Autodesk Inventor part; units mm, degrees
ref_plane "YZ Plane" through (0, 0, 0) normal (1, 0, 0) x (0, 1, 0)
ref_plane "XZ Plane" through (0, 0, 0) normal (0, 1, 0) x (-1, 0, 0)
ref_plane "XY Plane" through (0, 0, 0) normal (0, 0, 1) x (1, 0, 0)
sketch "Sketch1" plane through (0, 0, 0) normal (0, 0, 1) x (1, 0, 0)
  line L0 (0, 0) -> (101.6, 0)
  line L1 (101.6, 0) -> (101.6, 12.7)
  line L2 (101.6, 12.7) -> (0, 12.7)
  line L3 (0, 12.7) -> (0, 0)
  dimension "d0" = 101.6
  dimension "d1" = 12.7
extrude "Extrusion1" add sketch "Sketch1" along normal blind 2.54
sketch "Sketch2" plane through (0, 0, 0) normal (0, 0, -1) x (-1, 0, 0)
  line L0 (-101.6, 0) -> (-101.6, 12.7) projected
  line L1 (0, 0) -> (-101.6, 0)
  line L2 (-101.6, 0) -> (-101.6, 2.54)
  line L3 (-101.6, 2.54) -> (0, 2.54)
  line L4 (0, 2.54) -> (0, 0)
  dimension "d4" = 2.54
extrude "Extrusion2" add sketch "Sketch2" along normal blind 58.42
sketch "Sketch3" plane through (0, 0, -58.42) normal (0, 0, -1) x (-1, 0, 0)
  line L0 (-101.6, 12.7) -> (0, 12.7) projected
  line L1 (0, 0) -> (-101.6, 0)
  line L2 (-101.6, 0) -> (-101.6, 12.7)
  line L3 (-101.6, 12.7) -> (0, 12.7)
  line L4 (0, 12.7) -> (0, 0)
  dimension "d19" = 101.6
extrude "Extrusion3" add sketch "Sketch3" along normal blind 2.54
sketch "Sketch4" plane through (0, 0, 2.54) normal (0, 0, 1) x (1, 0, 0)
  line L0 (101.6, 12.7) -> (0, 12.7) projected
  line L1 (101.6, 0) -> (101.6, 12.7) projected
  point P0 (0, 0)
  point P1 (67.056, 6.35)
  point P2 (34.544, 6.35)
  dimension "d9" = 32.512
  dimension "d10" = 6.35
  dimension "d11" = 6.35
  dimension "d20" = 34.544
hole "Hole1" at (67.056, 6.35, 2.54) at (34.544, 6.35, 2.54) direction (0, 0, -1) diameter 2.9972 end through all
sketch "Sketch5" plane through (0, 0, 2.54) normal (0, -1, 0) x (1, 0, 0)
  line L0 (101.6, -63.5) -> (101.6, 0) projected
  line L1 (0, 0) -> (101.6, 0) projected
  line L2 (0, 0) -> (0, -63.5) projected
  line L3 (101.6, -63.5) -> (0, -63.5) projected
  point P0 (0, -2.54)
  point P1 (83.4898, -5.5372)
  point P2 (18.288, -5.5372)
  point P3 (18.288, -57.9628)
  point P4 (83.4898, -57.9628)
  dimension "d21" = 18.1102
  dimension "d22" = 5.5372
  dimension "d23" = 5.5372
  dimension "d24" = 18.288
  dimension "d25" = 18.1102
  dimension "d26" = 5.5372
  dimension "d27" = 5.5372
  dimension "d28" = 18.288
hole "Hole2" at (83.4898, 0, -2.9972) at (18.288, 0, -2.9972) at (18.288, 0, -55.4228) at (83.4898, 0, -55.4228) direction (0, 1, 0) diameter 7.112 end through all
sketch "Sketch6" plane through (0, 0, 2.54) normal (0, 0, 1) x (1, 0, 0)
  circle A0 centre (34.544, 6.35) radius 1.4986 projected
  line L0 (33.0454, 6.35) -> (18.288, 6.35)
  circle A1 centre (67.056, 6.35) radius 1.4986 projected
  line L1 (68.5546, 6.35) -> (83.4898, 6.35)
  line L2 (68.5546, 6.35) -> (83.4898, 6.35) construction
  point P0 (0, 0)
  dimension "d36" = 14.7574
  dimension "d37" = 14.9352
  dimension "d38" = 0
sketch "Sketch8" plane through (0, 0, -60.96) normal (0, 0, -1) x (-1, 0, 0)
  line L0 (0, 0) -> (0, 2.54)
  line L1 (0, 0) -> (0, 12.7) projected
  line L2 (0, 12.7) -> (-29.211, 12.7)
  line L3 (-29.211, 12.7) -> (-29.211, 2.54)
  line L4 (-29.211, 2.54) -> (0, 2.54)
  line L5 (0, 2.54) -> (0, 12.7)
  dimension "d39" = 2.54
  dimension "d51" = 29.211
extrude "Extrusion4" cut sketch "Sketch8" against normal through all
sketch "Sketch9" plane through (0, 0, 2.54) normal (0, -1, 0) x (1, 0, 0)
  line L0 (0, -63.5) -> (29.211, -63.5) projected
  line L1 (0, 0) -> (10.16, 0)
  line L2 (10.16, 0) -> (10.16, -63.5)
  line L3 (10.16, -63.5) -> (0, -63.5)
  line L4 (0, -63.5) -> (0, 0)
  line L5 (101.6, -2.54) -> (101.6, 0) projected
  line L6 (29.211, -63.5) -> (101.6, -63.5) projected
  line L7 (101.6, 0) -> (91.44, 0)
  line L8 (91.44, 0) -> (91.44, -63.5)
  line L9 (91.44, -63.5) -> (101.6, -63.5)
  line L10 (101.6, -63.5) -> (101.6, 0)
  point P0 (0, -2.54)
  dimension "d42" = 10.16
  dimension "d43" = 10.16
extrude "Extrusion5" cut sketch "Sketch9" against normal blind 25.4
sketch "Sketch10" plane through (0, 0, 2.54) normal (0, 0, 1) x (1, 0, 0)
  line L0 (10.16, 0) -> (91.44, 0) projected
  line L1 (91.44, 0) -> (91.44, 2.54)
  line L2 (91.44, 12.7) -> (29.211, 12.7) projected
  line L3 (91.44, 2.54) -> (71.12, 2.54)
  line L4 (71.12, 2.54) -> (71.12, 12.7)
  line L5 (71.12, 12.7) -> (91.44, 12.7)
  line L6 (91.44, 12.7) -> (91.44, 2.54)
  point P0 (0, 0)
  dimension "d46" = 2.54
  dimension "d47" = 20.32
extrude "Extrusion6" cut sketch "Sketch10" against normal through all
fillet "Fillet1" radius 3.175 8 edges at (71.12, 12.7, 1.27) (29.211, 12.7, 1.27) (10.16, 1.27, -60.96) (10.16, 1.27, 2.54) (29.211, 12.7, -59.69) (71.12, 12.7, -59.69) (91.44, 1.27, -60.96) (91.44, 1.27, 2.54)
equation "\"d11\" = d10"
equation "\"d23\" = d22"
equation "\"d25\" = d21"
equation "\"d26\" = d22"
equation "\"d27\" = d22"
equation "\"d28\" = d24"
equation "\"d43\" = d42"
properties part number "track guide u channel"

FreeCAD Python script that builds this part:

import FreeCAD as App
import Part
import Sketcher
from FreeCAD import Vector
Q = App.Units.Quantity


def edges_at(feature, points):
    """Names of the edges that pass closest to the given points."""
    edges = feature.Shape.Edges
    near = lambda p: min(range(len(edges)), key=lambda i: edges[i].distToShape(Part.Vertex(*p))[0])
    return sorted({f"Edge{near(p) + 1}" for p in points})


def add_polygon(sketch, points):
    """Adds a closed chain of lines whose ends are joined by coincident constraints."""
    first, n = sketch.GeometryCount, len(points)
    for a, b in zip(points, points[1:] + points[:1]):
        sketch.addGeometry(Part.LineSegment(App.Vector(*a, 0), App.Vector(*b, 0)), False)
    for i in range(n):
        sketch.addConstraint(Sketcher.Constraint("Coincident", first + i, 2, first + (i + 1) % n, 1))

doc = App.newDocument("Part")
params = doc.addObject("Spreadsheet::Sheet", "Params")
for row, (alias, value) in enumerate([
    ("sketch1_width", "4 in"),
    ("sketch1_height", "0.5 in"),
    ("pad1_length", "0.1 in"),
    ("sketch2_height", "0.1 in"),
    ("sketch2_width", "4 in"),
    ("pad2_length", "2.3 in"),
    ("sketch3_width", "4 in"),
    ("sketch3_height", "0.5 in"),
    ("pad3_length", "0.1 in"),
    ("sketch4_diameter", "0.118 in"),
    ("hole_diameter", "0.118 in"),
    ("sketch5_diameter", "0.28 in"),
    ("hole2_diameter", "0.28 in"),
    ("sketch6_height", "0.4 in"),
    ("sketch7_width", "0.4 in"),
    ("sketch7_height", "2.5 in"),
    ("pocket2_length", "1 in"),
    ("sketch8_width", "0.8 in"),
    ("sketch8_height", "0.4 in"),
    ("fillet_radius", "0.125 in"),
], start=1):
    params.set(f"A{row}", alias)
    params.set(f"B{row}", "=" + value)
    params.setAlias(f"B{row}", alias)

body = doc.addObject("PartDesign::Body", "Body")

sketch1 = doc.addObject("Sketcher::SketchObject", "Sketch")
body.addObject(sketch1)
sketch1.AttachmentSupport = (doc.XY_Plane, [""])
sketch1.MapMode = "FlatFace"
add_polygon(sketch1, [(0, 12.7), (0, 0), (101.6, 0), (101.6, 12.7)])
sketch1.addConstraint(Sketcher.Constraint("Vertical", 0))
sketch1.addConstraint(Sketcher.Constraint("Horizontal", 1))
sketch1.addConstraint(Sketcher.Constraint("Vertical", 2))
sketch1.addConstraint(Sketcher.Constraint("Horizontal", 3))
sketch1.addConstraint(Sketcher.Constraint("Coincident", 0, 2, -1, 1))
sketch1.addConstraint(Sketcher.Constraint("DistanceX", 1, 1, 1, 2, Q("4 in")))
sketch1.addConstraint(Sketcher.Constraint("DistanceY", 0, 2, 0, 1, Q("0.5 in")))
sketch1.setExpression("Constraints[9]", "Params.sketch1_width")
sketch1.setExpression("Constraints[10]", "Params.sketch1_height")
pad1 = doc.addObject("PartDesign::Pad", "Pad")
body.addObject(pad1)
pad1.Profile = sketch1
pad1.setExpression("Length", "Params.pad1_length")

sketch2 = doc.addObject("Sketcher::SketchObject", "Sketch001")
body.addObject(sketch2)
sketch2.AttachmentSupport = (doc.XY_Plane, [""])
sketch2.MapMode = "FlatFace"
add_polygon(sketch2, [(101.6, 2.54), (101.6, 0), (0, 0), (0, 2.54)])
sketch2.addConstraint(Sketcher.Constraint("Vertical", 0))
sketch2.addConstraint(Sketcher.Constraint("Horizontal", 1))
sketch2.addConstraint(Sketcher.Constraint("Vertical", 2))
sketch2.addConstraint(Sketcher.Constraint("Horizontal", 3))
sketch2.addConstraint(Sketcher.Constraint("Coincident", 1, 2, -1, 1))
sketch2.addConstraint(Sketcher.Constraint("DistanceY", 0, 2, 0, 1, Q("0.1 in")))
sketch2.addConstraint(Sketcher.Constraint("DistanceX", 1, 2, 1, 1, Q("4 in")))
sketch2.setExpression("Constraints[9]", "Params.sketch2_height")
sketch2.setExpression("Constraints[10]", "Params.sketch2_width")
pad2 = doc.addObject("PartDesign::Pad", "Pad001")
body.addObject(pad2)
pad2.Profile = sketch2
pad2.setExpression("Length", "Params.pad2_length")
pad2.Reversed = True

sketch3 = doc.addObject("Sketcher::SketchObject", "Sketch002")
body.addObject(sketch3)
sketch3.AttachmentSupport = (doc.XY_Plane, [""])
sketch3.MapMode = "FlatFace"
sketch3.AttachmentOffset = App.Placement(Vector(0, 0, -2.3 * 25.4), App.Rotation())
add_polygon(sketch3, [(0, 12.7), (101.6, 12.7), (101.6, 0), (0, 0)])
sketch3.addConstraint(Sketcher.Constraint("Horizontal", 0))
sketch3.addConstraint(Sketcher.Constraint("Vertical", 1))
sketch3.addConstraint(Sketcher.Constraint("Horizontal", 2))
sketch3.addConstraint(Sketcher.Constraint("Vertical", 3))
sketch3.addConstraint(Sketcher.Constraint("Coincident", 2, 2, -1, 1))
sketch3.addConstraint(Sketcher.Constraint("DistanceX", 0, 1, 0, 2, Q("4 in")))
sketch3.addConstraint(Sketcher.Constraint("DistanceY", 1, 2, 1, 1, Q("0.5 in")))
sketch3.setExpression("Constraints[9]", "Params.sketch3_width")
sketch3.setExpression("Constraints[10]", "Params.sketch3_height")
pad3 = doc.addObject("PartDesign::Pad", "Pad002")
body.addObject(pad3)
pad3.Profile = sketch3
pad3.setExpression("Length", "Params.pad3_length")
pad3.Reversed = True

sketch4 = doc.addObject("Sketcher::SketchObject", "Sketch003")
body.addObject(sketch4)
sketch4.AttachmentSupport = (doc.XY_Plane, [""])
sketch4.MapMode = "FlatFace"
sketch4.AttachmentOffset = App.Placement(Vector(0, 0, 0.1 * 25.4), App.Rotation())
sketch4.addGeometry(Part.Circle(Vector(67.056, 6.35, 0), Vector(0, 0, 1), 1.4986), False)
sketch4.addGeometry(Part.Circle(Vector(34.544, 6.35, 0), Vector(0, 0, 1), 1.4986), False)
sketch4.addConstraint(Sketcher.Constraint("Equal", 0, 1))
sketch4.addConstraint(Sketcher.Constraint("Horizontal", 0, 3, 1, 3))
sketch4.addConstraint(Sketcher.Constraint("Diameter", 0, Q("0.118 in")))
sketch4.addConstraint(Sketcher.Constraint("DistanceX", -1, 1, 0, 3, Q("2.64 in")))
sketch4.addConstraint(Sketcher.Constraint("DistanceY", -1, 1, 0, 3, Q("0.25 in")))
sketch4.addConstraint(Sketcher.Constraint("DistanceX", -1, 1, 1, 3, Q("1.36 in")))
sketch4.setExpression("Constraints[2]", "Params.sketch4_diameter")
doc.recompute()
hole = doc.addObject("PartDesign::Hole", "Hole")
body.addObject(hole)
hole.Profile = sketch4
hole.ThreadType = "None"
hole.setExpression("Diameter", "Params.hole_diameter")
hole.DepthType = "ThroughAll"

sketch5 = doc.addObject("Sketcher::SketchObject", "Sketch004")
body.addObject(sketch5)
sketch5.AttachmentSupport = (doc.XZ_Plane, [""])
sketch5.MapMode = "FlatFace"
sketch5.addGeometry(Part.Circle(Vector(83.4898, -2.9972, 0), Vector(0, 0, 1), 3.556), False)
sketch5.addGeometry(Part.Circle(Vector(18.288, -2.9972, 0), Vector(0, 0, 1), 3.556), False)
sketch5.addGeometry(Part.Circle(Vector(18.288, -55.4228, 0), Vector(0, 0, 1), 3.556), False)
sketch5.addGeometry(Part.Circle(Vector(83.4898, -55.4228, 0), Vector(0, 0, 1), 3.556), False)
sketch5.addConstraint(Sketcher.Constraint("Equal", 0, 1))
sketch5.addConstraint(Sketcher.Constraint("Equal", 1, 2))
sketch5.addConstraint(Sketcher.Constraint("Equal", 2, 3))
sketch5.addConstraint(Sketcher.Constraint("Horizontal", 0, 3, 1, 3))
sketch5.addConstraint(Sketcher.Constraint("Horizontal", 2, 3, 3, 3))
sketch5.addConstraint(Sketcher.Constraint("Vertical", 1, 3, 2, 3))
sketch5.addConstraint(Sketcher.Constraint("Vertical", 0, 3, 3, 3))
sketch5.addConstraint(Sketcher.Constraint("Diameter", 0, Q("0.28 in")))
sketch5.addConstraint(Sketcher.Constraint("DistanceX", -1, 1, 1, 3, Q("0.72 in")))
sketch5.addConstraint(Sketcher.Constraint("DistanceX", -1, 1, 0, 3, Q("3.287 in")))
sketch5.addConstraint(Sketcher.Constraint("DistanceY", 0, 3, -1, 1, Q("0.118 in")))
sketch5.addConstraint(Sketcher.Constraint("DistanceY", 2, 3, -1, 1, Q("2.182 in")))
sketch5.setExpression("Constraints[7]", "Params.sketch5_diameter")
doc.recompute()
hole2 = doc.addObject("PartDesign::Hole", "Hole001")
body.addObject(hole2)
hole2.Profile = sketch5
hole2.ThreadType = "None"
hole2.setExpression("Diameter", "Params.hole2_diameter")
hole2.DepthType = "ThroughAll"

sketch6 = doc.addObject("Sketcher::SketchObject", "Sketch005")
body.addObject(sketch6)
sketch6.AttachmentSupport = (doc.XY_Plane, [""])
sketch6.MapMode = "FlatFace"
sketch6.AttachmentOffset = App.Placement(Vector(0, 0, -2.4 * 25.4), App.Rotation())
add_polygon(sketch6, [(29.211, 2.54), (0, 2.54), (0, 12.7), (29.211, 12.7)])
sketch6.addConstraint(Sketcher.Constraint("Horizontal", 0))
sketch6.addConstraint(Sketcher.Constraint("Vertical", 1))
sketch6.addConstraint(Sketcher.Constraint("Horizontal", 2))
sketch6.addConstraint(Sketcher.Constraint("Vertical", 3))
sketch6.addConstraint(Sketcher.Constraint("PointOnObject", 0, 2, -2))
sketch6.addConstraint(Sketcher.Constraint("DistanceY", -1, 1, 0, 2, Q("0.1 in")))
sketch6.addConstraint(Sketcher.Constraint("DistanceY", 1, 1, 1, 2, Q("0.4 in")))
sketch6.addConstraint(Sketcher.Constraint("DistanceX", 0, 2, 0, 1, Q("29.211 mm")))
sketch6.setExpression("Constraints[10]", "Params.sketch6_height")
pocket1 = doc.addObject("PartDesign::Pocket", "Pocket")
body.addObject(pocket1)
pocket1.Profile = sketch6
pocket1.Type = "ThroughAll"
pocket1.Reversed = True

sketch7 = doc.addObject("Sketcher::SketchObject", "Sketch006")
body.addObject(sketch7)
sketch7.AttachmentSupport = (doc.XZ_Plane, [""])
sketch7.MapMode = "FlatFace"
add_polygon(sketch7, [(0, 2.54), (0, -60.96), (10.16, -60.96), (10.16, 2.54)])
add_polygon(sketch7, [(91.44, 2.54), (91.44, -60.96), (101.6, -60.96), (101.6, 2.54)])
sketch7.addConstraint(Sketcher.Constraint("Vertical", 0))
sketch7.addConstraint(Sketcher.Constraint("Horizontal", 1))
sketch7.addConstraint(Sketcher.Constraint("Vertical", 2))
sketch7.addConstraint(Sketcher.Constraint("Horizontal", 3))
sketch7.addConstraint(Sketcher.Constraint("Vertical", 4))
sketch7.addConstraint(Sketcher.Constraint("Horizontal", 5))
sketch7.addConstraint(Sketcher.Constraint("Vertical", 6))
sketch7.addConstraint(Sketcher.Constraint("Horizontal", 7))
sketch7.addConstraint(Sketcher.Constraint("PointOnObject", 0, 2, -2))
sketch7.addConstraint(Sketcher.Constraint("Horizontal", 1, 2, 4, 2))
sketch7.addConstraint(Sketcher.Constraint("Horizontal", 3, 2, 6, 2))
sketch7.addConstraint(Sketcher.Constraint("Equal", 3, 5))
sketch7.addConstraint(Sketcher.Constraint("DistanceX", 1, 1, 1, 2, Q("0.4 in")))
sketch7.addConstraint(Sketcher.Constraint("DistanceY", 0, 2, 0, 1, Q("2.5 in")))
sketch7.addConstraint(Sketcher.Constraint("DistanceX", -1, 1, 5, 2, Q("4 in")))
sketch7.addConstraint(Sketcher.Constraint("DistanceY", 0, 2, -1, 1, Q("2.4 in")))
sketch7.setExpression("Constraints[20]", "Params.sketch7_width")
sketch7.setExpression("Constraints[21]", "Params.sketch7_height")
pocket2 = doc.addObject("PartDesign::Pocket", "Pocket001")
body.addObject(pocket2)
pocket2.Profile = sketch7
pocket2.setExpression("Length", "Params.pocket2_length")

sketch8 = doc.addObject("Sketcher::SketchObject", "Sketch007")
body.addObject(sketch8)
sketch8.AttachmentSupport = (doc.XY_Plane, [""])
sketch8.MapMode = "FlatFace"
sketch8.AttachmentOffset = App.Placement(Vector(0, 0, 0.1 * 25.4), App.Rotation())
add_polygon(sketch8, [(91.44, 2.54), (91.44, 12.7), (71.12, 12.7), (71.12, 2.54)])
sketch8.addConstraint(Sketcher.Constraint("Vertical", 0))
sketch8.addConstraint(Sketcher.Constraint("Horizontal", 1))
sketch8.addConstraint(Sketcher.Constraint("Vertical", 2))
sketch8.addConstraint(Sketcher.Constraint("Horizontal", 3))
sketch8.addConstraint(Sketcher.Constraint("DistanceX", 1, 2, 1, 1, Q("0.8 in")))
sketch8.addConstraint(Sketcher.Constraint("DistanceY", -1, 1, 2, 2, Q("0.1 in")))
sketch8.addConstraint(Sketcher.Constraint("DistanceY", 0, 1, 0, 2, Q("0.4 in")))
sketch8.addConstraint(Sketcher.Constraint("DistanceX", -1, 1, 0, 2, Q("3.6 in")))
sketch8.setExpression("Constraints[8]", "Params.sketch8_width")
sketch8.setExpression("Constraints[10]", "Params.sketch8_height")
pocket3 = doc.addObject("PartDesign::Pocket", "Pocket002")
body.addObject(pocket3)
pocket3.Profile = sketch8
pocket3.Type = "ThroughAll"
doc.recompute()

fillet = doc.addObject("PartDesign::Fillet", "Fillet")
body.addObject(fillet)
fillet.Base = (pocket3, edges_at(pocket3, [
    (71.12, 12.7, 1.27),
    (29.211, 12.7, 1.27),
    (10.16, 1.27, -60.96),
    (10.16, 1.27, 2.54),
    (29.211, 12.7, -59.69),
    (71.12, 12.7, -59.69),
    (91.44, 1.27, -60.96),
    (91.44, 1.27, 2.54),
]))
fillet.setExpression("Radius", "Params.fillet_radius")

doc.recompute()
